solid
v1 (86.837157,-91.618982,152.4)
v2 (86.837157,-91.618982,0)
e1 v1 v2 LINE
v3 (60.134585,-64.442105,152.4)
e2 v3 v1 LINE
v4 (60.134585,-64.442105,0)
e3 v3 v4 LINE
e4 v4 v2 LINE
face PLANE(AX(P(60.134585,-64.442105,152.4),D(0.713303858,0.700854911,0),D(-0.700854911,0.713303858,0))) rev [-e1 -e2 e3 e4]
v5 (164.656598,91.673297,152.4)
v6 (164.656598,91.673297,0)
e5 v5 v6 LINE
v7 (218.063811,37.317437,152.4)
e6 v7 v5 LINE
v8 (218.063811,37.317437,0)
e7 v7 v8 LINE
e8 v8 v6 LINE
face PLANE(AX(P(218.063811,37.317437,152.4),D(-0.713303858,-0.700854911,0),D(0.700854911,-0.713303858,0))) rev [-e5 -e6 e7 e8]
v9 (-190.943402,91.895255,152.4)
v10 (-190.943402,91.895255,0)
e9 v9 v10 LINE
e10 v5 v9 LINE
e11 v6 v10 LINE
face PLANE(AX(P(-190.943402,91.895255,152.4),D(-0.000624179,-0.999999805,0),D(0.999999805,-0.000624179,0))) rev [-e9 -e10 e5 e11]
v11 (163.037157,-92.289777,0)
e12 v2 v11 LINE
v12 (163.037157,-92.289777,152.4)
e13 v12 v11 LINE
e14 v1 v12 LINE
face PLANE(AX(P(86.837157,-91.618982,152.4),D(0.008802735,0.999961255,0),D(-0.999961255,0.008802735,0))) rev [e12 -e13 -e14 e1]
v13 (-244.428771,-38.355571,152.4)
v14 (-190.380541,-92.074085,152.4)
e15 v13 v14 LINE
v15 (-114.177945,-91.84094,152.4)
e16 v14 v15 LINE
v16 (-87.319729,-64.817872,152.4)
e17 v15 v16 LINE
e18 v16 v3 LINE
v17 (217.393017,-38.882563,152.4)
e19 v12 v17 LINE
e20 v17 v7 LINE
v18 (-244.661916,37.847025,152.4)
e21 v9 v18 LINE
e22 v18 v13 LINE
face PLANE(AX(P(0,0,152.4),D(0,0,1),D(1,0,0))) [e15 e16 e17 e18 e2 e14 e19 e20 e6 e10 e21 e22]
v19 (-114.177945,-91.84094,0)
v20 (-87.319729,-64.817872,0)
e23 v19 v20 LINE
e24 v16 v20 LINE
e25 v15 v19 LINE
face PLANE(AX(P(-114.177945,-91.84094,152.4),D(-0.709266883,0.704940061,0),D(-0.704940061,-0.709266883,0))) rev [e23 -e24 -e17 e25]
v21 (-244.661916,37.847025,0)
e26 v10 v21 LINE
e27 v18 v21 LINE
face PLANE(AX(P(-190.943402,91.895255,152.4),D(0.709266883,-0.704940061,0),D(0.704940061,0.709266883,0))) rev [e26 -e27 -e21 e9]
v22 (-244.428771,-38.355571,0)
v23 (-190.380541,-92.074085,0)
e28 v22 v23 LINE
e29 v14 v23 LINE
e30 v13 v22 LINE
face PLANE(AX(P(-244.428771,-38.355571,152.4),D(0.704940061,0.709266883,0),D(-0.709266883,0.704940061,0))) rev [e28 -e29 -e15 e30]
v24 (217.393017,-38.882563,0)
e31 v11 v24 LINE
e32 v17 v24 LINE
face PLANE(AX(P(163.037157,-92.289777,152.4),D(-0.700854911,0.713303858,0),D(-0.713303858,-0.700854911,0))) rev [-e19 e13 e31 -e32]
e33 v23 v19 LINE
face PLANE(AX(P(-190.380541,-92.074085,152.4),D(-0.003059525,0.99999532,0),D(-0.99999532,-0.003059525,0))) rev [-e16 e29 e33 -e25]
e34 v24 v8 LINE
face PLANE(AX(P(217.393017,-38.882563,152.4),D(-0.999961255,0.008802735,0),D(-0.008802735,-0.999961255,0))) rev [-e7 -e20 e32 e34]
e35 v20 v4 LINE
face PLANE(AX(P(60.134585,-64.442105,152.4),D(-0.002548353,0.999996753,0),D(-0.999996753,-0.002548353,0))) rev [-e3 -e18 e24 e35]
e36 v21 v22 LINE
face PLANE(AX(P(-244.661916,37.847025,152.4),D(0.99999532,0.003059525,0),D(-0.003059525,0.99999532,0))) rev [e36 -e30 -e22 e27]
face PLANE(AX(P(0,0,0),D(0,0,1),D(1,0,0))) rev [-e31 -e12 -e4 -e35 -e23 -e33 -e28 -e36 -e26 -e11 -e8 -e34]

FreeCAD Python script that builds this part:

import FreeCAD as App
import Part
import Sketcher
Q = App.Units.Quantity


def add_polygon(sketch, points):
    """Adds a closed chain of lines whose ends are joined by coincident constraints."""
    first, n = sketch.GeometryCount, len(points)
    for a, b in zip(points, points[1:] + points[:1]):
        sketch.addGeometry(Part.LineSegment(App.Vector(*a, 0), App.Vector(*b, 0)), False)
    for i in range(n):
        sketch.addConstraint(Sketcher.Constraint("Coincident", first + i, 2, first + (i + 1) % n, 1))

doc = App.newDocument("Part")
params = doc.addObject("Spreadsheet::Sheet", "Params")
for row, (alias, value) in enumerate([
    ("sketch1_length", "1.5 in"),
    ("pad1_length", "6 in"),
], start=1):
    params.set(f"A{row}", alias)
    params.set(f"B{row}", "=" + value)
    params.setAlias(f"B{row}", alias)

body = doc.addObject("PartDesign::Body", "Body")

sketch1 = doc.addObject("Sketcher::SketchObject", "Sketch")
body.addObject(sketch1)
sketch1.AttachmentSupport = (doc.XY_Plane, [""])
sketch1.MapMode = "FlatFace"
add_polygon(sketch1, [(-87, -65), (60, -64), (87, -92), (163, -92), (217, -39), (218, 37), (165, 92), (-191, 92), (-245, 38), (-244, -38), (-190, -92), (-114, -92)])
sketch1.addConstraint([
    Sketcher.Constraint("Perpendicular", 1, 3),
    Sketcher.Constraint("Perpendicular", 2, 4),
    Sketcher.Constraint("Perpendicular", 3, 5),
    Sketcher.Constraint("Perpendicular", 7, 9),
    Sketcher.Constraint("Perpendicular", 8, 10),
    Sketcher.Constraint("Perpendicular", 9, 11),
    Sketcher.Constraint("Equal", 2, 3),
    Sketcher.Constraint("Equal", 3, 4),
    Sketcher.Constraint("Equal", 4, 5),
    Sketcher.Constraint("Equal", 5, 7),
    Sketcher.Constraint("Equal", 7, 8),
    Sketcher.Constraint("Equal", 8, 9),
    Sketcher.Constraint("Equal", 9, 10),
    Sketcher.Constraint("Equal", 1, 11),
    Sketcher.Constraint("DistanceX", 1, 2, 2, 2, Q("3 in")),
    Sketcher.Constraint("DistanceX", 6, 2, 5, 2, Q("14 in")),
    Sketcher.Constraint("Distance", 1, Q("1.5 in")),
    Sketcher.Constraint("DistanceX", 7, 2, 0, 2, 304.796501),
    Sketcher.Constraint("DistanceY", 2, 2, 7, 2, 130.136801),
    Sketcher.Constraint("DistanceY", 11, 2, 8, 2, 26.462301),
    Sketcher.Constraint("DistanceX", -1, 1, 4, 2, 218.063811),
    Sketcher.Constraint("DistanceX", 8, 2, -1, 1, 244.428771),
    Sketcher.Constraint("DistanceY", 8, 2, -1, 1, 38.355571),
    Sketcher.Constraint("DistanceX", 9, 2, -1, 1, 190.380541),
])
sketch1.setExpression("Constraints[28]", "Params.sketch1_length")
pad1 = doc.addObject("PartDesign::Pad", "Pad")
body.addObject(pad1)
pad1.Profile = sketch1
pad1.setExpression("Length", "Params.pad1_length")

doc.recompute()
